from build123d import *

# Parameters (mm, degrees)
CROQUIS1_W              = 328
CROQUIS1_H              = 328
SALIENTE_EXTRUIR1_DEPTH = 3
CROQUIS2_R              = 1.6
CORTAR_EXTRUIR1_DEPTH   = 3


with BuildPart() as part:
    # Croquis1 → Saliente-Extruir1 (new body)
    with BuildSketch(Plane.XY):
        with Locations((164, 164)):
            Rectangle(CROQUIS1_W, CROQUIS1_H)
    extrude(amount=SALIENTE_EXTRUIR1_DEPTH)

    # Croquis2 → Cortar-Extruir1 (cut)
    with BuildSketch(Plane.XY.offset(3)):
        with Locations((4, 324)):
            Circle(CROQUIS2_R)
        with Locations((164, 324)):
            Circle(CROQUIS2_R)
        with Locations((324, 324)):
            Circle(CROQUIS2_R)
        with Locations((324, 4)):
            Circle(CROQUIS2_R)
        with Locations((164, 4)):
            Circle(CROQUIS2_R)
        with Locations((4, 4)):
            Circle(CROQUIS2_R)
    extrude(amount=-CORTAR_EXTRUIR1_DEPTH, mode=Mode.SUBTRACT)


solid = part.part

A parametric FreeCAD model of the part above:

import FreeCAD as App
import Part
import Sketcher

V = App.Vector
Q = App.Units.Quantity

doc = App.newDocument("Part")
body = doc.addObject("PartDesign::Body", "Body")

sketch1 = doc.addObject("Sketcher::SketchObject", "Sketch")
body.addObject(sketch1)
sketch1.AttachmentSupport = (doc.XY_Plane, [""])
sketch1.MapMode = "FlatFace"
sketch1.addGeometry([
    Part.LineSegment(V(0, 328, 0), V(0, 0, 0)),
    Part.LineSegment(V(0, 0, 0), V(328, 0, 0)),
    Part.LineSegment(V(328, 0, 0), V(328, 328, 0)),
    Part.LineSegment(V(328, 328, 0), V(0, 328, 0)),
], False)
sketch1.addConstraint([
    Sketcher.Constraint("Coincident", 0, 2, 1, 1),
    Sketcher.Constraint("Coincident", 1, 2, 2, 1),
    Sketcher.Constraint("Coincident", 2, 2, 3, 1),
    Sketcher.Constraint("Coincident", 3, 2, 0, 1),
    Sketcher.Constraint("Vertical", 0),
    Sketcher.Constraint("Horizontal", 1),
    Sketcher.Constraint("Vertical", 2),
    Sketcher.Constraint("Horizontal", 3),
    Sketcher.Constraint("Coincident", 0, 2, -1, 1),
    Sketcher.Constraint("Equal", 3, 0),
    Sketcher.Constraint("DistanceX", 1, 1, 1, 2, Q("328 mm")),
])
pad1 = doc.addObject("PartDesign::Pad", "Pad")
body.addObject(pad1)
pad1.Profile = sketch1
pad1.Length = 3

sketch2 = doc.addObject("Sketcher::SketchObject", "Sketch001")
body.addObject(sketch2)
sketch2.AttachmentSupport = (doc.XY_Plane, [""])
sketch2.MapMode = "FlatFace"
sketch2.AttachmentOffset = App.Placement(V(0, 0, 3), App.Rotation())
sketch2.addGeometry([
    Part.Circle(V(4, 324, 0), V(0, 0, 1), 1.6),
    Part.Circle(V(164, 324, 0), V(0, 0, 1), 1.6),
    Part.Circle(V(324, 324, 0), V(0, 0, 1), 1.6),
    Part.Circle(V(324, 4, 0), V(0, 0, 1), 1.6),
    Part.Circle(V(164, 4, 0), V(0, 0, 1), 1.6),
    Part.Circle(V(4, 4, 0), V(0, 0, 1), 1.6),
], False)
sketch2.addConstraint([
    Sketcher.Constraint("Equal", 0, 1),
    Sketcher.Constraint("Equal", 1, 2),
    Sketcher.Constraint("Equal", 2, 3),
    Sketcher.Constraint("Equal", 3, 4),
    Sketcher.Constraint("Equal", 4, 5),
    Sketcher.Constraint("Horizontal", 0, 3, 1, 3),
    Sketcher.Constraint("Horizontal", 1, 3, 2, 3),
    Sketcher.Constraint("Horizontal", 3, 3, 4, 3),
    Sketcher.Constraint("Horizontal", 4, 3, 5, 3),
    Sketcher.Constraint("Vertical", 2, 3, 3, 3),
    Sketcher.Constraint("Vertical", 1, 3, 4, 3),
    Sketcher.Constraint("Vertical", 0, 3, 5, 3),
    Sketcher.Constraint("Diameter", 0, Q("3.2 mm")),
    Sketcher.Constraint("DistanceX", -1, 1, 0, 3, Q("4 mm")),
    Sketcher.Constraint("DistanceY", -1, 1, 0, 3, Q("324 mm")),
    Sketcher.Constraint("DistanceX", -1, 1, 1, 3, Q("164 mm")),
    Sketcher.Constraint("DistanceX", -1, 1, 2, 3, Q("324 mm")),
    Sketcher.Constraint("DistanceY", -1, 1, 3, 3, Q("4 mm")),
])
pocket1 = doc.addObject("PartDesign::Pocket", "Pocket")
body.addObject(pocket1)
pocket1.Profile = sketch2
pocket1.Length = 3

doc.recompute()
